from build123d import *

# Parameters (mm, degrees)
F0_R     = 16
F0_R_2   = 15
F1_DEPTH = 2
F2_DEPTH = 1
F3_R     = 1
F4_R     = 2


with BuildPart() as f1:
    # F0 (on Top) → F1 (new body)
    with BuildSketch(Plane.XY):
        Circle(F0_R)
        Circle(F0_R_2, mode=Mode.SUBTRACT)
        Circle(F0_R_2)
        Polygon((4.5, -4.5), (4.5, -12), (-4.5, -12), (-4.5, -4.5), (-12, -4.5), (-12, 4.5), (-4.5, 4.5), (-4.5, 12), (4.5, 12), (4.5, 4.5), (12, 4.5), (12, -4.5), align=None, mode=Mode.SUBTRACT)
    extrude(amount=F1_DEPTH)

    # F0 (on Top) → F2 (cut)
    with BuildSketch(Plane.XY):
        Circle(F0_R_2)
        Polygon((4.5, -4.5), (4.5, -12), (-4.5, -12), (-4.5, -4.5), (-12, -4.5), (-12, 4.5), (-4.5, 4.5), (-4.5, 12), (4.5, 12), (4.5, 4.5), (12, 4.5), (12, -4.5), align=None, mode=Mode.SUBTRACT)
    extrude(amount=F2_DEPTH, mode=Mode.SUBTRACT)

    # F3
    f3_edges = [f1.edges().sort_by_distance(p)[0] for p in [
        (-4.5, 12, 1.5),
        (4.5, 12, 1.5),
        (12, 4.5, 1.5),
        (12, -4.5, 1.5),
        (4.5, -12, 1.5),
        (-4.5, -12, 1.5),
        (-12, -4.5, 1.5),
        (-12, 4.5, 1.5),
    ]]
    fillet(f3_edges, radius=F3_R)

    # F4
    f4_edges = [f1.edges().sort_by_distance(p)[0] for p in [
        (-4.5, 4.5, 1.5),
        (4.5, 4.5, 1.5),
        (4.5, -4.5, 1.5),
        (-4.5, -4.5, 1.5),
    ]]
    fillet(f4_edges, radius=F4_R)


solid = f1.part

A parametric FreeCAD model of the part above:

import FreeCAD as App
import Part
import Sketcher

V = App.Vector
Q = App.Units.Quantity


def edges_at(feature, points):
    """Names of the edges that pass closest to the given points."""
    edges = feature.Shape.Edges
    near = lambda p: min(range(len(edges)), key=lambda i: edges[i].distToShape(Part.Vertex(*p))[0])
    return sorted({f"Edge{near(p) + 1}" for p in points})

doc = App.newDocument("Part")
body = doc.addObject("PartDesign::Body", "Body")

# Sketch on XY plane
sketch1 = doc.addObject("Sketcher::SketchObject", "Sketch")
body.addObject(sketch1)
sketch1.AttachmentSupport = (doc.XY_Plane, [""])
sketch1.MapMode = "FlatFace"
sketch1.addGeometry([
    Part.Circle(V(0, 0, 0), V(0, 0, 1), 16),  # 0
    Part.LineSegment(V(12, -4.5, 0), V(4.5, -4.5, 0)),  # 1
    Part.LineSegment(V(4.5, -4.5, 0), V(4.5, -12, 0)),  # 2
    Part.LineSegment(V(4.5, -12, 0), V(-4.5, -12, 0)),  # 3
    Part.LineSegment(V(-4.5, -12, 0), V(-4.5, -4.5, 0)),  # 4
    Part.LineSegment(V(-4.5, -4.5, 0), V(-12, -4.5, 0)),  # 5
    Part.LineSegment(V(-12, -4.5, 0), V(-12, 4.5, 0)),  # 6
    Part.LineSegment(V(-12, 4.5, 0), V(-4.5, 4.5, 0)),  # 7
    Part.LineSegment(V(-4.5, 4.5, 0), V(-4.5, 12, 0)),  # 8
    Part.LineSegment(V(-4.5, 12, 0), V(4.5, 12, 0)),  # 9
    Part.LineSegment(V(4.5, 12, 0), V(4.5, 4.5, 0)),  # 10
    Part.LineSegment(V(4.5, 4.5, 0), V(12, 4.5, 0)),  # 11
    Part.LineSegment(V(12, 4.5, 0), V(12, -4.5, 0)),  # 12
], False)
sketch1.addConstraint([
    Sketcher.Constraint("Coincident", 1, 2, 2, 1),
    Sketcher.Constraint("Coincident", 2, 2, 3, 1),
    Sketcher.Constraint("Coincident", 3, 2, 4, 1),
    Sketcher.Constraint("Coincident", 4, 2, 5, 1),
    Sketcher.Constraint("Coincident", 5, 2, 6, 1),
    Sketcher.Constraint("Coincident", 6, 2, 7, 1),
    Sketcher.Constraint("Coincident", 7, 2, 8, 1),
    Sketcher.Constraint("Coincident", 8, 2, 9, 1),
    Sketcher.Constraint("Coincident", 9, 2, 10, 1),
    Sketcher.Constraint("Coincident", 10, 2, 11, 1),
    Sketcher.Constraint("Coincident", 11, 2, 12, 1),
    Sketcher.Constraint("Coincident", 12, 2, 1, 1),
    Sketcher.Constraint("Horizontal", 1),
    Sketcher.Constraint("Vertical", 2),
    Sketcher.Constraint("Horizontal", 3),
    Sketcher.Constraint("Vertical", 4),
    Sketcher.Constraint("Horizontal", 5),
    Sketcher.Constraint("Vertical", 6),
    Sketcher.Constraint("Horizontal", 7),
    Sketcher.Constraint("Vertical", 8),
    Sketcher.Constraint("Horizontal", 9),
    Sketcher.Constraint("Vertical", 10),
    Sketcher.Constraint("Horizontal", 11),
    Sketcher.Constraint("Vertical", 12),
    Sketcher.Constraint("Coincident", 0, 3, -1, 1),
    Sketcher.Constraint("Symmetric", 1, 2, 7, 2, -1, 1),
    Sketcher.Constraint("Symmetric", 3, 2, 9, 2, -1, 1),
    Sketcher.Constraint("Symmetric", 5, 2, 11, 2, -1, 1),
    Sketcher.Constraint("Symmetric", 1, 2, 4, 2, -2),
    Sketcher.Constraint("Equal", 11, 2),
    Sketcher.Constraint("Equal", 9, 6),
    Sketcher.Constraint("Diameter", 0, Q("32 mm")),
    Sketcher.Constraint("DistanceX", 3, 2, 3, 1, Q("9 mm")),
    Sketcher.Constraint("DistanceX", 1, 2, 1, 1, Q("7.5 mm")),
])
pad1 = doc.addObject("PartDesign::Pad", "Pad")
body.addObject(pad1)
pad1.Profile = sketch1
pad1.Length = 2

# Sketch on XY plane
sketch2 = doc.addObject("Sketcher::SketchObject", "Sketch001")
body.addObject(sketch2)
sketch2.AttachmentSupport = (doc.XY_Plane, [""])
sketch2.MapMode = "FlatFace"
sketch2.addGeometry([
    Part.Circle(V(0, 0, 0), V(0, 0, 1), 15),  # 0
    Part.LineSegment(V(12, -4.5, 0), V(4.5, -4.5, 0)),  # 1
    Part.LineSegment(V(4.5, -4.5, 0), V(4.5, -12, 0)),  # 2
    Part.LineSegment(V(4.5, -12, 0), V(-4.5, -12, 0)),  # 3
    Part.LineSegment(V(-4.5, -12, 0), V(-4.5, -4.5, 0)),  # 4
    Part.LineSegment(V(-4.5, -4.5, 0), V(-12, -4.5, 0)),  # 5
    Part.LineSegment(V(-12, -4.5, 0), V(-12, 4.5, 0)),  # 6
    Part.LineSegment(V(-12, 4.5, 0), V(-4.5, 4.5, 0)),  # 7
    Part.LineSegment(V(-4.5, 4.5, 0), V(-4.5, 12, 0)),  # 8
    Part.LineSegment(V(-4.5, 12, 0), V(4.5, 12, 0)),  # 9
    Part.LineSegment(V(4.5, 12, 0), V(4.5, 4.5, 0)),  # 10
    Part.LineSegment(V(4.5, 4.5, 0), V(12, 4.5, 0)),  # 11
    Part.LineSegment(V(12, 4.5, 0), V(12, -4.5, 0)),  # 12
], False)
sketch2.addConstraint([
    Sketcher.Constraint("Coincident", 1, 2, 2, 1),
    Sketcher.Constraint("Coincident", 2, 2, 3, 1),
    Sketcher.Constraint("Coincident", 3, 2, 4, 1),
    Sketcher.Constraint("Coincident", 4, 2, 5, 1),
    Sketcher.Constraint("Coincident", 5, 2, 6, 1),
    Sketcher.Constraint("Coincident", 6, 2, 7, 1),
    Sketcher.Constraint("Coincident", 7, 2, 8, 1),
    Sketcher.Constraint("Coincident", 8, 2, 9, 1),
    Sketcher.Constraint("Coincident", 9, 2, 10, 1),
    Sketcher.Constraint("Coincident", 10, 2, 11, 1),
    Sketcher.Constraint("Coincident", 11, 2, 12, 1),
    Sketcher.Constraint("Coincident", 12, 2, 1, 1),
    Sketcher.Constraint("Horizontal", 1),
    Sketcher.Constraint("Vertical", 2),
    Sketcher.Constraint("Horizontal", 3),
    Sketcher.Constraint("Vertical", 4),
    Sketcher.Constraint("Horizontal", 5),
    Sketcher.Constraint("Vertical", 6),
    Sketcher.Constraint("Horizontal", 7),
    Sketcher.Constraint("Vertical", 8),
    Sketcher.Constraint("Horizontal", 9),
    Sketcher.Constraint("Vertical", 10),
    Sketcher.Constraint("Horizontal", 11),
    Sketcher.Constraint("Vertical", 12),
    Sketcher.Constraint("Coincident", 0, 3, -1, 1),
    Sketcher.Constraint("Symmetric", 1, 2, 7, 2, -1, 1),
    Sketcher.Constraint("Symmetric", 3, 2, 9, 2, -1, 1),
    Sketcher.Constraint("Symmetric", 5, 2, 11, 2, -1, 1),
    Sketcher.Constraint("Symmetric", 1, 2, 4, 2, -2),
    Sketcher.Constraint("Equal", 11, 2),
    Sketcher.Constraint("Equal", 9, 6),
    Sketcher.Constraint("Diameter", 0, Q("30 mm")),
    Sketcher.Constraint("DistanceX", 3, 2, 3, 1, Q("9 mm")),
    Sketcher.Constraint("DistanceX", 1, 2, 1, 1, Q("7.5 mm")),
])
pocket1 = doc.addObject("PartDesign::Pocket", "Pocket")
body.addObject(pocket1)
pocket1.Profile = sketch2
pocket1.Length = 1
pocket1.Reversed = True
doc.recompute()

fillet = doc.addObject("PartDesign::Fillet", "Fillet")
body.addObject(fillet)
fillet.Base = (pocket1, edges_at(pocket1, [
    (-4.5, 12, 1.5),
    (4.5, 12, 1.5),
    (12, 4.5, 1.5),
    (12, -4.5, 1.5),
    (4.5, -12, 1.5),
    (-4.5, -12, 1.5),
    (-12, -4.5, 1.5),
    (-12, 4.5, 1.5),
]))
fillet.Radius = 1
doc.recompute()

fillet2 = doc.addObject("PartDesign::Fillet", "Fillet001")
body.addObject(fillet2)
fillet2.Base = (fillet, edges_at(fillet, [
    (-4.5, 4.5, 1.5),
    (4.5, 4.5, 1.5),
    (4.5, -4.5, 1.5),
    (-4.5, -4.5, 1.5),
]))
fillet2.Radius = 2

doc.recompute()
